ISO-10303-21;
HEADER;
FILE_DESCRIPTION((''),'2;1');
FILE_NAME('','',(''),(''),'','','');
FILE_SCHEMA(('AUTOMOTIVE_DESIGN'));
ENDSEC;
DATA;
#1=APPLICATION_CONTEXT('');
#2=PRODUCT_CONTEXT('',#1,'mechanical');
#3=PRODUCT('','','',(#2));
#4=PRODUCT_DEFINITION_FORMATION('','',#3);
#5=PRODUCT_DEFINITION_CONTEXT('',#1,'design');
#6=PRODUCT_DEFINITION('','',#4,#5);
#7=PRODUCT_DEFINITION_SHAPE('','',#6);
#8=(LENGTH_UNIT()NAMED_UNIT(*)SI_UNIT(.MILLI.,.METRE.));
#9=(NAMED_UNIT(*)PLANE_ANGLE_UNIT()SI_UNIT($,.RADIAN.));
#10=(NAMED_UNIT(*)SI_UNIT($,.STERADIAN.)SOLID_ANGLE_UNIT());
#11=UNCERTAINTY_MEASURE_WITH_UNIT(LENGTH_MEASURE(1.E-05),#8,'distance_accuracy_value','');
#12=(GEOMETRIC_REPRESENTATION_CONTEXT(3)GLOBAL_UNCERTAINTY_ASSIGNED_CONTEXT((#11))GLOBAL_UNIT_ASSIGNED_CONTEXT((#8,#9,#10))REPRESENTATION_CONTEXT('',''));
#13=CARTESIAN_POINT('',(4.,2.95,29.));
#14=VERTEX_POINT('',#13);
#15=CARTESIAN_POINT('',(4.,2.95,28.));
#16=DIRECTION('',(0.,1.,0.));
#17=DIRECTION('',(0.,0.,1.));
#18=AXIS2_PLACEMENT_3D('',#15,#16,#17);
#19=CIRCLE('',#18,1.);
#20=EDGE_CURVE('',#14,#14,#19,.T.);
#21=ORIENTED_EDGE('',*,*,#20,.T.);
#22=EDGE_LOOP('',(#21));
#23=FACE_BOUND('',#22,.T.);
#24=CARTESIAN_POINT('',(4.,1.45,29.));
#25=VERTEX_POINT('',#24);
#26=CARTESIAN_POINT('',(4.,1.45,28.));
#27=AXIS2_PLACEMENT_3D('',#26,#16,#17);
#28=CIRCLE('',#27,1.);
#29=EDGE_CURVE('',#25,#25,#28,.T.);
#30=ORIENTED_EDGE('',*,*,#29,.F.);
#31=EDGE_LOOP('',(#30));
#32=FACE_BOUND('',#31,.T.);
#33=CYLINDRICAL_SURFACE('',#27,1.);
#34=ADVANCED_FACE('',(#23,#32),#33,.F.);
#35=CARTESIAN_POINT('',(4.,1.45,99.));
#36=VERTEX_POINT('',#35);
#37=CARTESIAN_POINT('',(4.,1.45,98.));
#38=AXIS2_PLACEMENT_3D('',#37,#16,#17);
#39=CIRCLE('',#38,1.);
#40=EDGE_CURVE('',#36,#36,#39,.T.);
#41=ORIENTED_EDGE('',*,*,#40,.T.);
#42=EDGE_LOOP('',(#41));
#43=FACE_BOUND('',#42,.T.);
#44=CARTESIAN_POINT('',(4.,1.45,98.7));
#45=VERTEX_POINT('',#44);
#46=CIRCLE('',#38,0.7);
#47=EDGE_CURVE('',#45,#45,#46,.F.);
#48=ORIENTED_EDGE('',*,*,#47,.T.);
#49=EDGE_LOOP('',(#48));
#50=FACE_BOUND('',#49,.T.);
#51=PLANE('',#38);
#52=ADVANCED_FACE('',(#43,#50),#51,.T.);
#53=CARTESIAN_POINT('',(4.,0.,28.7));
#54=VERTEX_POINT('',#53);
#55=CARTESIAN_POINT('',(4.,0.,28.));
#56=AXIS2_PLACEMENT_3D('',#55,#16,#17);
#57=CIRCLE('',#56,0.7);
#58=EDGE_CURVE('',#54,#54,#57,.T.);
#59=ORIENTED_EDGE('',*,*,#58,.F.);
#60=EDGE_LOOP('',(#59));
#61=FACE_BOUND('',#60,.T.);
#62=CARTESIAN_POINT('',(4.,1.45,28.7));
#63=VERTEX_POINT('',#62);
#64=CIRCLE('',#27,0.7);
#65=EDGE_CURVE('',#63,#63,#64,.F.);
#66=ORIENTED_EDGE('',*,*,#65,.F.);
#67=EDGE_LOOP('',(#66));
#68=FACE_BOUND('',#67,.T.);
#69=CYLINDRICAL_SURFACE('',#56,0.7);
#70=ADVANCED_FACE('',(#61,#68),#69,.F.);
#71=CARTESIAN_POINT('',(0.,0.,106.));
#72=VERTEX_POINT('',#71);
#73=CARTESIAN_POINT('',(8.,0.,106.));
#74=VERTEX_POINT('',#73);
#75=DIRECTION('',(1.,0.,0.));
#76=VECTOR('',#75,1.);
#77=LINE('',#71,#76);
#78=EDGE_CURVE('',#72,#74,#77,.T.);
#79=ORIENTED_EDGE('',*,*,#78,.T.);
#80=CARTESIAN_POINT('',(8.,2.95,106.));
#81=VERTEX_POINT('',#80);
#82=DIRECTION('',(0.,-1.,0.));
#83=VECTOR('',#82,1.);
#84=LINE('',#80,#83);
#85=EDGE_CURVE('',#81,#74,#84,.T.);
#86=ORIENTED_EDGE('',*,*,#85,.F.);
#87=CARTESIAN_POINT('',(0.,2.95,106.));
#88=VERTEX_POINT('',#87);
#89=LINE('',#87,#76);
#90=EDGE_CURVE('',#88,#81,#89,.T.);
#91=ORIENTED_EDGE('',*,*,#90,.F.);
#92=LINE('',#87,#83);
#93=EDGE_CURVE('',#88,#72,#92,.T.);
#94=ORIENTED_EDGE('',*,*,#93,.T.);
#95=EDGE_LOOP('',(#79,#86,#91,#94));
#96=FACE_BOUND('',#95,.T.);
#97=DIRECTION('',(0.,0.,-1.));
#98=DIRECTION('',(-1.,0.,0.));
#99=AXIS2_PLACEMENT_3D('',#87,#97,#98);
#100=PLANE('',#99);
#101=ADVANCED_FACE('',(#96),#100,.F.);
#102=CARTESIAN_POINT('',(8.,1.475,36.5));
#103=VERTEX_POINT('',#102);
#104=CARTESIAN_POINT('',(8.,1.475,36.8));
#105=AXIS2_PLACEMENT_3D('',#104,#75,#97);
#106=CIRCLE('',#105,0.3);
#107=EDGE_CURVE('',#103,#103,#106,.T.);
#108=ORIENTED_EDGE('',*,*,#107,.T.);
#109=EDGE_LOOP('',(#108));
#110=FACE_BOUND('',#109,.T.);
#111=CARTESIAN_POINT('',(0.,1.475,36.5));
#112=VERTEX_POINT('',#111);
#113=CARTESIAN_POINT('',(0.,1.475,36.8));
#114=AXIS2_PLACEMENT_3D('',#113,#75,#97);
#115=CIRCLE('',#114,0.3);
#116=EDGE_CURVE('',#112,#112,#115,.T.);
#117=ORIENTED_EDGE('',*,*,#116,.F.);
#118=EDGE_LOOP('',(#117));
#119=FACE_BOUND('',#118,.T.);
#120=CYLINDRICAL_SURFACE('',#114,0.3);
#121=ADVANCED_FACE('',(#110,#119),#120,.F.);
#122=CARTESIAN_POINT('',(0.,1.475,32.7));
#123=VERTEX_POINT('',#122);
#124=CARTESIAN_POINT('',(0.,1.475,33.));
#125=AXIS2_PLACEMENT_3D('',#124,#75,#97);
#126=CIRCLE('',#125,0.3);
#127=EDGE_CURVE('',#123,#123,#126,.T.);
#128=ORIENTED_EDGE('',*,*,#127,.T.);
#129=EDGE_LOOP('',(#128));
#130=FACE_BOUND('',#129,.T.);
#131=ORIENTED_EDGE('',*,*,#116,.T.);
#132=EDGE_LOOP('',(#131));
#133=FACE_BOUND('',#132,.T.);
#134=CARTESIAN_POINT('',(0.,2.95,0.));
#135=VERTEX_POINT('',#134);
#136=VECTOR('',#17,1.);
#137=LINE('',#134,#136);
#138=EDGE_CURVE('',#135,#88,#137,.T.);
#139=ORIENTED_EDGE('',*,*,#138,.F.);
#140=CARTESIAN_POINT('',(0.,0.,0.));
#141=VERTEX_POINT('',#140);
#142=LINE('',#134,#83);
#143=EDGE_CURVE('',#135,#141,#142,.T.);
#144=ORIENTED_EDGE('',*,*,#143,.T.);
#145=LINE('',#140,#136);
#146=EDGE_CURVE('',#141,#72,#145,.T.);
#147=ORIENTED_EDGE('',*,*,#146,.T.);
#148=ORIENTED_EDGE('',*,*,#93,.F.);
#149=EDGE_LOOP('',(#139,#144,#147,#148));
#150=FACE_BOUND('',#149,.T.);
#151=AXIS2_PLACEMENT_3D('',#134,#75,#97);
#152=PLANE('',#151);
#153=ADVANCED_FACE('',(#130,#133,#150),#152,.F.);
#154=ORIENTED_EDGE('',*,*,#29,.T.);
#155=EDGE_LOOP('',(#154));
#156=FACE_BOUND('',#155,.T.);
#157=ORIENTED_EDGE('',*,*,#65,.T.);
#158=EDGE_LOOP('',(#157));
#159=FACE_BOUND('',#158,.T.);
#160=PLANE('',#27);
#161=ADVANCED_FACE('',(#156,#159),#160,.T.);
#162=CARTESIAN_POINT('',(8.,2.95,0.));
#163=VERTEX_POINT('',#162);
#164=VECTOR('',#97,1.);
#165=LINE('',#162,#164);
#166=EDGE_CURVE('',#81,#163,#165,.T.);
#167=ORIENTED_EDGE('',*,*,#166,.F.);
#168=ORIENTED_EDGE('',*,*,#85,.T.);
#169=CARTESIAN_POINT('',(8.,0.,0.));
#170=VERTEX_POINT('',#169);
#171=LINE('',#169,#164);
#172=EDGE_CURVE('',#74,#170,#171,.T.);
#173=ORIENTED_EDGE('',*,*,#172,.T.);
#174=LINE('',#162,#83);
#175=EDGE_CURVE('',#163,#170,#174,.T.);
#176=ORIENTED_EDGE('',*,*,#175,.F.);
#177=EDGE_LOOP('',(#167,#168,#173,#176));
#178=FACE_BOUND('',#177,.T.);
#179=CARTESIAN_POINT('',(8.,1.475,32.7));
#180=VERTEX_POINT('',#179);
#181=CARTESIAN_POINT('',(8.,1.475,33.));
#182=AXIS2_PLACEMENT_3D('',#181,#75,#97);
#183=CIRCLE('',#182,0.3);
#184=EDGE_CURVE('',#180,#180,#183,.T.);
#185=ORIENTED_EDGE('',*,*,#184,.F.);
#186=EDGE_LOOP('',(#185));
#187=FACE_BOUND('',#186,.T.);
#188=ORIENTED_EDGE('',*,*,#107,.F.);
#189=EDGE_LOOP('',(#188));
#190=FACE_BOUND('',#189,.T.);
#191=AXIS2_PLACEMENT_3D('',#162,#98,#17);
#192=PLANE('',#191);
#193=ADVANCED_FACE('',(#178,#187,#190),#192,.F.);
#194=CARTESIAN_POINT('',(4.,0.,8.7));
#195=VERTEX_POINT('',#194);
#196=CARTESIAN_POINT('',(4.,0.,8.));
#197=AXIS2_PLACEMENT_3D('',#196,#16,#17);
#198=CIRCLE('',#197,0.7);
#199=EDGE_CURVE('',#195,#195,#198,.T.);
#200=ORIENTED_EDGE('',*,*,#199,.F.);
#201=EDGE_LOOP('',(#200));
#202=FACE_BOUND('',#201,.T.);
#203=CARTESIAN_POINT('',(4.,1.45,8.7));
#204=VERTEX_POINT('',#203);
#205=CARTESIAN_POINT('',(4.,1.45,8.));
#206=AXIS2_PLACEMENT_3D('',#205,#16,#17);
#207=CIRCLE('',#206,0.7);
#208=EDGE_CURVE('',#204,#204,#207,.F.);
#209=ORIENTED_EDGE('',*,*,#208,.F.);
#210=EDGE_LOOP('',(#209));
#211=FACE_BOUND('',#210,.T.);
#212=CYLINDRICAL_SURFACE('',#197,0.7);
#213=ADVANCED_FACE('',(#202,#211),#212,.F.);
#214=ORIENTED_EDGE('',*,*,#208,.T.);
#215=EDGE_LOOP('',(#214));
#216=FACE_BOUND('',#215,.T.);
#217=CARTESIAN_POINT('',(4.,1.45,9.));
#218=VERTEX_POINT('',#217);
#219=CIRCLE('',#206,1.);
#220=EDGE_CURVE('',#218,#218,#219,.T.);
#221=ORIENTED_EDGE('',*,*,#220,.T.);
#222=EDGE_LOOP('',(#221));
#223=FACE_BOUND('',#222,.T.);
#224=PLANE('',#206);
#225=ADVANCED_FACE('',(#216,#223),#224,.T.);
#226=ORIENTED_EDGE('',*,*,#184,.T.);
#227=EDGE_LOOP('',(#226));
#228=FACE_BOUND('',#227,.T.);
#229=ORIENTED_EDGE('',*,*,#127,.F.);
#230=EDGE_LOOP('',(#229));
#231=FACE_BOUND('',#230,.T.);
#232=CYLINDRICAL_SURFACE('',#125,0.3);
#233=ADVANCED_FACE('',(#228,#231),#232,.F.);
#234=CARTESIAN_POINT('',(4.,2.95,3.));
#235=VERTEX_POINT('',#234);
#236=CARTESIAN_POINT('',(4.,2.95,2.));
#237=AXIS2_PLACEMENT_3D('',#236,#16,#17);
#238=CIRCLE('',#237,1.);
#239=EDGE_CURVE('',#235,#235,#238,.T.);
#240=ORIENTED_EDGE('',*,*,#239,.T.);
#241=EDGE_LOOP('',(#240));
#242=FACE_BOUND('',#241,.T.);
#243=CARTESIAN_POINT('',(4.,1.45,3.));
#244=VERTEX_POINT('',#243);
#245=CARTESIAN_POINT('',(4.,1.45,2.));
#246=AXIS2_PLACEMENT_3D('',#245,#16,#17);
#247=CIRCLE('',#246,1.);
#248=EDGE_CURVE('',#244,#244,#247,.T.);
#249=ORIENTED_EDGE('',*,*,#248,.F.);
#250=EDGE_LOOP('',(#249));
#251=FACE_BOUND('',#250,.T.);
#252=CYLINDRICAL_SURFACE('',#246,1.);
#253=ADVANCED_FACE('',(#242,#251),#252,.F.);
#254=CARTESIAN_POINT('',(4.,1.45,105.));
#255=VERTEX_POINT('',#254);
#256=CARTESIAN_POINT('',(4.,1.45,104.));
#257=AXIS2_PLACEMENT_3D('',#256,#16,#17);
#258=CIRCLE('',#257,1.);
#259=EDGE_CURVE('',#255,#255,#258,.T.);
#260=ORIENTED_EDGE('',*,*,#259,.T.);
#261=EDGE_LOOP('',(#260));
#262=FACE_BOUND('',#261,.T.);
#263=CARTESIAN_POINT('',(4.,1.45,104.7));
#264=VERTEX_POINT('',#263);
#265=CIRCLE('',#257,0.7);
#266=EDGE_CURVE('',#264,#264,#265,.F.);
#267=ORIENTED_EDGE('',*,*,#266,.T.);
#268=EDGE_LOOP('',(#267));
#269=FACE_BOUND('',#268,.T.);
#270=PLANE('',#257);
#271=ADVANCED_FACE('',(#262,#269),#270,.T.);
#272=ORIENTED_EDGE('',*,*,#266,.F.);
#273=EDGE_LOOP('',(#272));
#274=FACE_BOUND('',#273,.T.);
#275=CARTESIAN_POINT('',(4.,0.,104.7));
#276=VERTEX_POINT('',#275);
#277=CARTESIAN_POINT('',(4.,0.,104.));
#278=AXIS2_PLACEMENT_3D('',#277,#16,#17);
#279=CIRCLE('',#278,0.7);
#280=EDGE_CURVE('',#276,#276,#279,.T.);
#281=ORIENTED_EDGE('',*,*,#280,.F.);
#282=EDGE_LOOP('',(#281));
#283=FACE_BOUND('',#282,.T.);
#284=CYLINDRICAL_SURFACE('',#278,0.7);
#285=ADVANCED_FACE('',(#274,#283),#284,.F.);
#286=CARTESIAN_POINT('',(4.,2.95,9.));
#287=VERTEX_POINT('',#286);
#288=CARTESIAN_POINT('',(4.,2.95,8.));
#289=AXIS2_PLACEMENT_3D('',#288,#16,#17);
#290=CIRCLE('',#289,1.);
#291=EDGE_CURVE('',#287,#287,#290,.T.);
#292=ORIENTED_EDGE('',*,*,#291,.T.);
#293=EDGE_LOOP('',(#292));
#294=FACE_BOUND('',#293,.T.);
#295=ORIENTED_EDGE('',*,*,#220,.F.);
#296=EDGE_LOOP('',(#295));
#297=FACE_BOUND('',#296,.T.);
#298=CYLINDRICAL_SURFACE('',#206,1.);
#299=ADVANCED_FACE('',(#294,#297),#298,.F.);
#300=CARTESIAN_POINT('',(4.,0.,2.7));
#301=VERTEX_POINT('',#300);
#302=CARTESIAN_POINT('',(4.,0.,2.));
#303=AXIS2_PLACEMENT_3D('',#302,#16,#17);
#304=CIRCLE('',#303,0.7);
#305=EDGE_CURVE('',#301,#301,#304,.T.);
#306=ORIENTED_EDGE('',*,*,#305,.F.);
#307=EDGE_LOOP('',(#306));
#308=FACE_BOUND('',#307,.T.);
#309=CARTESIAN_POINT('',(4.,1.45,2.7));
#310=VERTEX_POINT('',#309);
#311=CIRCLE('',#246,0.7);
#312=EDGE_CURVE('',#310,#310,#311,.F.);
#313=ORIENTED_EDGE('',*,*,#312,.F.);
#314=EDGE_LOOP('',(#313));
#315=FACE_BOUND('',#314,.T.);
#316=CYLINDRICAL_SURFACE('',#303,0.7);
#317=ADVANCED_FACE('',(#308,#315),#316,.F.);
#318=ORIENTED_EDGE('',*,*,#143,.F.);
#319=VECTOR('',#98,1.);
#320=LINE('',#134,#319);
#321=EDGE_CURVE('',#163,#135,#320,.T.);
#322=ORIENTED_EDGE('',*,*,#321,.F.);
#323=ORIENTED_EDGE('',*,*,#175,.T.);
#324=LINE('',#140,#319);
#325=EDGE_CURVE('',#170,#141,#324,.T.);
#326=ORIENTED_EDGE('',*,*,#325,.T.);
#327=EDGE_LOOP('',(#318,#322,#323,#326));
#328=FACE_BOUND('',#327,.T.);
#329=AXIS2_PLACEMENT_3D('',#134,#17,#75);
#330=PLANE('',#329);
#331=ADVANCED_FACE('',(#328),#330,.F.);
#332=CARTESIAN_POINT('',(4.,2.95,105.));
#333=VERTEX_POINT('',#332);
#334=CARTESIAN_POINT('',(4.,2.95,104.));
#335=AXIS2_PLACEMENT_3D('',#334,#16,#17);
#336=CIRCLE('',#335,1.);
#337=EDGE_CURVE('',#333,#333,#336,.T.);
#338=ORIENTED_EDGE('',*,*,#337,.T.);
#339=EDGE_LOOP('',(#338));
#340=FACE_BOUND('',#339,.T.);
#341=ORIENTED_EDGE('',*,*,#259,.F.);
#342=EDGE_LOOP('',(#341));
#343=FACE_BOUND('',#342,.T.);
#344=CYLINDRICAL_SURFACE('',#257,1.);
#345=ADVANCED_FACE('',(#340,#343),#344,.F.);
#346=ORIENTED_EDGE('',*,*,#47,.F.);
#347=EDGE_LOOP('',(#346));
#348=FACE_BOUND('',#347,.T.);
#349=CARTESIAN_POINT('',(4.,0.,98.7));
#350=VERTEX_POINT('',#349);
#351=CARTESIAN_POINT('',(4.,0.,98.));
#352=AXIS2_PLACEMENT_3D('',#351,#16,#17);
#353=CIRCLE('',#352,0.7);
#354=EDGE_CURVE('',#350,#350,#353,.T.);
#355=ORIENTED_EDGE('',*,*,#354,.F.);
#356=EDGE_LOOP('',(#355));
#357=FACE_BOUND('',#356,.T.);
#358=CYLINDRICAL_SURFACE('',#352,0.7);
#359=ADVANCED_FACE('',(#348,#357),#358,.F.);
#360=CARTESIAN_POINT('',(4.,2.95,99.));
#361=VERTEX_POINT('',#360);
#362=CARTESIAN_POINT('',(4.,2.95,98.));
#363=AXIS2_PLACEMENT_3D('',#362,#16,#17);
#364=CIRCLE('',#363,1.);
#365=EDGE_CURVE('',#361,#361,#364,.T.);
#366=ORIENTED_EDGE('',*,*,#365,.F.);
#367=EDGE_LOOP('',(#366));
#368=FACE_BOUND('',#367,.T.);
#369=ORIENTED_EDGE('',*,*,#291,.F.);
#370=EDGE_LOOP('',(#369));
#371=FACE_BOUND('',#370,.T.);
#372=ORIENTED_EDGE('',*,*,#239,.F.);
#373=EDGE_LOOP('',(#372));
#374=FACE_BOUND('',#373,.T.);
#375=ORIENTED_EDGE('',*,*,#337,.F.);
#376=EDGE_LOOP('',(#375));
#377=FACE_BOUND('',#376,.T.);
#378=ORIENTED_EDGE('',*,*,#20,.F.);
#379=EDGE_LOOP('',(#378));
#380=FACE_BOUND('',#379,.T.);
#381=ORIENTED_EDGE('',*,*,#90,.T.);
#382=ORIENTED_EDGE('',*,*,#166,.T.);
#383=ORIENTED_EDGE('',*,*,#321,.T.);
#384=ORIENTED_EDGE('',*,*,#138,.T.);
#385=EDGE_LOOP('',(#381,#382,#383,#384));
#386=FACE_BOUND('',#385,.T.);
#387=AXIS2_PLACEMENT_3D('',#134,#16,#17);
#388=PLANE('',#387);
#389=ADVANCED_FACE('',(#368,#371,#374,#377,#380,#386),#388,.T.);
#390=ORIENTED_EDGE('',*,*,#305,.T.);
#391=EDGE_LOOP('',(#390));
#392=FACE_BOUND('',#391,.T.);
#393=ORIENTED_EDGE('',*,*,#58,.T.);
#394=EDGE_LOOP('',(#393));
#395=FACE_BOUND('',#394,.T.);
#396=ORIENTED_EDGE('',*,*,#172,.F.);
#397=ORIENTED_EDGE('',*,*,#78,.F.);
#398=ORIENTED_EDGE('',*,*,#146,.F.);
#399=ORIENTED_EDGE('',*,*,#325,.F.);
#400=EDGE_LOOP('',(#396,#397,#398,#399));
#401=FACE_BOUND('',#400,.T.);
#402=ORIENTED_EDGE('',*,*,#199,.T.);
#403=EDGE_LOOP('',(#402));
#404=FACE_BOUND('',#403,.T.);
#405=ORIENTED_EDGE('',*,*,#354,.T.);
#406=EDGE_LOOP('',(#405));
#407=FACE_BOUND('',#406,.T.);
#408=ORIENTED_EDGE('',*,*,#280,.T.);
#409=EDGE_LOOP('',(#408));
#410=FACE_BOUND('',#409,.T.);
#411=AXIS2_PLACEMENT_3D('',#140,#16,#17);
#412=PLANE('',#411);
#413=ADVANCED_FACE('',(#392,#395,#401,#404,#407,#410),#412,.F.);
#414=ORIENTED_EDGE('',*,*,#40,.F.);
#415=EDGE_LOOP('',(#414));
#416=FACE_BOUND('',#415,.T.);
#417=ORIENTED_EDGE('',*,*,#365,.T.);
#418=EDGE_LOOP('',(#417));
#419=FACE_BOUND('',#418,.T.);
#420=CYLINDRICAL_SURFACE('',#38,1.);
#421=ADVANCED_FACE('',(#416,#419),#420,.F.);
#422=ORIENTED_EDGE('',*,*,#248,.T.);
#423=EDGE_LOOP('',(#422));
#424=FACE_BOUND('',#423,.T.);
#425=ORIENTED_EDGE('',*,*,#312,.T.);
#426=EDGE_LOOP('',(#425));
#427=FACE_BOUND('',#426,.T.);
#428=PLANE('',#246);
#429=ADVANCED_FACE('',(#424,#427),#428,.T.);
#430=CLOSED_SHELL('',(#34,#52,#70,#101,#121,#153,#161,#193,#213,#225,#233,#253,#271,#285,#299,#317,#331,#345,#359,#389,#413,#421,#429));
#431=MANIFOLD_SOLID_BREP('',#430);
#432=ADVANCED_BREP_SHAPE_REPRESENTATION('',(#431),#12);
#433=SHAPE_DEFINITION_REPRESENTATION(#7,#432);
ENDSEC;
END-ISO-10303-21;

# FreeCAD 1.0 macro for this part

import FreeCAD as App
import Part
import Sketcher
from FreeCAD import Vector
Q = App.Units.Quantity


def add_polygon(sketch, points):
    """Adds a closed chain of lines whose ends are joined by coincident constraints."""
    first, n = sketch.GeometryCount, len(points)
    for a, b in zip(points, points[1:] + points[:1]):
        sketch.addGeometry(Part.LineSegment(App.Vector(*a, 0), App.Vector(*b, 0)), False)
    for i in range(n):
        sketch.addConstraint(Sketcher.Constraint("Coincident", first + i, 2, first + (i + 1) % n, 1))

doc = App.newDocument("Part")
body = doc.addObject("PartDesign::Body", "Body")

# Sketch on XZ plane
sketch1 = doc.addObject("Sketcher::SketchObject", "Sketch")
body.addObject(sketch1)
sketch1.AttachmentSupport = (doc.XZ_Plane, [""])
sketch1.MapMode = "FlatFace"
add_polygon(sketch1, [(0, 0), (0, 106), (8, 106), (8, 0)])  # lines 0-3
sketch1.addConstraint(Sketcher.Constraint("Vertical", 0))
sketch1.addConstraint(Sketcher.Constraint("Horizontal", 1))
sketch1.addConstraint(Sketcher.Constraint("Vertical", 2))
sketch1.addConstraint(Sketcher.Constraint("Horizontal", 3))
sketch1.addConstraint(Sketcher.Constraint("Coincident", 3, 2, -1, 1))
sketch1.addConstraint(Sketcher.Constraint("DistanceX", 1, 1, 1, 2, Q("8 mm")))
sketch1.addConstraint(Sketcher.Constraint("DistanceY", 0, 1, 0, 2, Q("106 mm")))
pad1 = doc.addObject("PartDesign::Pad", "Pad")
body.addObject(pad1)
pad1.Profile = sketch1
pad1.Length = 2.95
pad1.Reversed = True

# Sketch on XZ plane
sketch2 = doc.addObject("Sketcher::SketchObject", "Sketch001")
body.addObject(sketch2)
sketch2.AttachmentSupport = (doc.XZ_Plane, [""])
sketch2.MapMode = "FlatFace"
sketch2.AttachmentOffset = App.Placement(Vector(0, 0, -2.95), App.Rotation())
sketch2.addGeometry(Part.Circle(Vector(4, 8, 0), Vector(0, 0, 1), 0.7), False)
sketch2.addGeometry(Part.Circle(Vector(4, 2, 0), Vector(0, 0, 1), 0.7), False)
sketch2.addGeometry(Part.Circle(Vector(4, 104, 0), Vector(0, 0, 1), 0.7), False)
sketch2.addGeometry(Part.Circle(Vector(4, 98, 0), Vector(0, 0, 1), 0.7), False)
sketch2.addGeometry(Part.Circle(Vector(4, 28, 0), Vector(0, 0, 1), 0.7), False)
sketch2.addConstraint(Sketcher.Constraint("Equal", 0, 1))
sketch2.addConstraint(Sketcher.Constraint("Equal", 1, 2))
sketch2.addConstraint(Sketcher.Constraint("Equal", 2, 3))
sketch2.addConstraint(Sketcher.Constraint("Equal", 3, 4))
sketch2.addConstraint(Sketcher.Constraint("Vertical", 0, 3, 1, 3))
sketch2.addConstraint(Sketcher.Constraint("Vertical", 1, 3, 2, 3))
sketch2.addConstraint(Sketcher.Constraint("Vertical", 2, 3, 3, 3))
sketch2.addConstraint(Sketcher.Constraint("Vertical", 3, 3, 4, 3))
sketch2.addConstraint(Sketcher.Constraint("Diameter", 0, Q("1.4 mm")))
sketch2.addConstraint(Sketcher.Constraint("DistanceX", -1, 1, 0, 3, Q("4 mm")))
sketch2.addConstraint(Sketcher.Constraint("DistanceY", -1, 1, 0, 3, Q("8 mm")))
sketch2.addConstraint(Sketcher.Constraint("DistanceY", -1, 1, 1, 3, Q("2 mm")))
sketch2.addConstraint(Sketcher.Constraint("DistanceY", -1, 1, 2, 3, Q("104 mm")))
sketch2.addConstraint(Sketcher.Constraint("DistanceY", -1, 1, 3, 3, Q("98 mm")))
sketch2.addConstraint(Sketcher.Constraint("DistanceY", -1, 1, 4, 3, Q("28 mm")))
pocket1 = doc.addObject("PartDesign::Pocket", "Pocket")
body.addObject(pocket1)
pocket1.Profile = sketch2
pocket1.Type = "ThroughAll"
pocket1.Reversed = True

# Sketch on XZ plane
sketch3 = doc.addObject("Sketcher::SketchObject", "Sketch002")
body.addObject(sketch3)
sketch3.AttachmentSupport = (doc.XZ_Plane, [""])
sketch3.MapMode = "FlatFace"
sketch3.AttachmentOffset = App.Placement(Vector(0, 0, -2.95), App.Rotation())
sketch3.addGeometry(Part.Circle(Vector(4, 8, 0), Vector(0, 0, 1), 1), False)
sketch3.addGeometry(Part.Circle(Vector(4, 2, 0), Vector(0, 0, 1), 1), False)
sketch3.addGeometry(Part.Circle(Vector(4, 104, 0), Vector(0, 0, 1), 1), False)
sketch3.addGeometry(Part.Circle(Vector(4, 98, 0), Vector(0, 0, 1), 1), False)
sketch3.addGeometry(Part.Circle(Vector(4, 28, 0), Vector(0, 0, 1), 1), False)
sketch3.addConstraint(Sketcher.Constraint("Equal", 0, 1))
sketch3.addConstraint(Sketcher.Constraint("Equal", 1, 2))
sketch3.addConstraint(Sketcher.Constraint("Equal", 2, 3))
sketch3.addConstraint(Sketcher.Constraint("Equal", 3, 4))
sketch3.addConstraint(Sketcher.Constraint("Vertical", 0, 3, 1, 3))
sketch3.addConstraint(Sketcher.Constraint("Vertical", 1, 3, 2, 3))
sketch3.addConstraint(Sketcher.Constraint("Vertical", 2, 3, 3, 3))
sketch3.addConstraint(Sketcher.Constraint("Vertical", 3, 3, 4, 3))
sketch3.addConstraint(Sketcher.Constraint("Diameter", 0, Q("2 mm")))
sketch3.addConstraint(Sketcher.Constraint("DistanceX", -1, 1, 0, 3, Q("4 mm")))
sketch3.addConstraint(Sketcher.Constraint("DistanceY", -1, 1, 0, 3, Q("8 mm")))
sketch3.addConstraint(Sketcher.Constraint("DistanceY", -1, 1, 1, 3, Q("2 mm")))
sketch3.addConstraint(Sketcher.Constraint("DistanceY", -1, 1, 2, 3, Q("104 mm")))
sketch3.addConstraint(Sketcher.Constraint("DistanceY", -1, 1, 3, 3, Q("98 mm")))
sketch3.addConstraint(Sketcher.Constraint("DistanceY", -1, 1, 4, 3, Q("28 mm")))
pocket2 = doc.addObject("PartDesign::Pocket", "Pocket001")
body.addObject(pocket2)
pocket2.Profile = sketch3
pocket2.Length = 1.5
pocket2.Reversed = True

# Sketch on YZ plane
sketch4 = doc.addObject("Sketcher::SketchObject", "Sketch003")
body.addObject(sketch4)
sketch4.AttachmentSupport = (doc.YZ_Plane, [""])
sketch4.MapMode = "FlatFace"
sketch4.AttachmentOffset = App.Placement(Vector(0, 0, 8), App.Rotation())
sketch4.addGeometry(Part.Circle(Vector(1.475, 33, 0), Vector(0, 0, 1), 0.3), False)
sketch4.addGeometry(Part.Circle(Vector(1.475, 36.8, 0), Vector(0, 0, 1), 0.3), False)
sketch4.addConstraint(Sketcher.Constraint("Equal", 0, 1))
sketch4.addConstraint(Sketcher.Constraint("Vertical", 0, 3, 1, 3))
sketch4.addConstraint(Sketcher.Constraint("Diameter", 0, Q("0.6 mm")))
sketch4.addConstraint(Sketcher.Constraint("DistanceY", -1, 1, 0, 3, Q("33 mm")))
sketch4.addConstraint(Sketcher.Constraint("DistanceY", -1, 1, 1, 3, Q("36.8 mm")))
sketch4.addConstraint(Sketcher.Constraint("DistanceX", -1, 1, 0, 3, Q("1.475 mm")))
pocket3 = doc.addObject("PartDesign::Pocket", "Pocket002")
body.addObject(pocket3)
pocket3.Profile = sketch4
pocket3.Type = "ThroughAll"

doc.recompute()
